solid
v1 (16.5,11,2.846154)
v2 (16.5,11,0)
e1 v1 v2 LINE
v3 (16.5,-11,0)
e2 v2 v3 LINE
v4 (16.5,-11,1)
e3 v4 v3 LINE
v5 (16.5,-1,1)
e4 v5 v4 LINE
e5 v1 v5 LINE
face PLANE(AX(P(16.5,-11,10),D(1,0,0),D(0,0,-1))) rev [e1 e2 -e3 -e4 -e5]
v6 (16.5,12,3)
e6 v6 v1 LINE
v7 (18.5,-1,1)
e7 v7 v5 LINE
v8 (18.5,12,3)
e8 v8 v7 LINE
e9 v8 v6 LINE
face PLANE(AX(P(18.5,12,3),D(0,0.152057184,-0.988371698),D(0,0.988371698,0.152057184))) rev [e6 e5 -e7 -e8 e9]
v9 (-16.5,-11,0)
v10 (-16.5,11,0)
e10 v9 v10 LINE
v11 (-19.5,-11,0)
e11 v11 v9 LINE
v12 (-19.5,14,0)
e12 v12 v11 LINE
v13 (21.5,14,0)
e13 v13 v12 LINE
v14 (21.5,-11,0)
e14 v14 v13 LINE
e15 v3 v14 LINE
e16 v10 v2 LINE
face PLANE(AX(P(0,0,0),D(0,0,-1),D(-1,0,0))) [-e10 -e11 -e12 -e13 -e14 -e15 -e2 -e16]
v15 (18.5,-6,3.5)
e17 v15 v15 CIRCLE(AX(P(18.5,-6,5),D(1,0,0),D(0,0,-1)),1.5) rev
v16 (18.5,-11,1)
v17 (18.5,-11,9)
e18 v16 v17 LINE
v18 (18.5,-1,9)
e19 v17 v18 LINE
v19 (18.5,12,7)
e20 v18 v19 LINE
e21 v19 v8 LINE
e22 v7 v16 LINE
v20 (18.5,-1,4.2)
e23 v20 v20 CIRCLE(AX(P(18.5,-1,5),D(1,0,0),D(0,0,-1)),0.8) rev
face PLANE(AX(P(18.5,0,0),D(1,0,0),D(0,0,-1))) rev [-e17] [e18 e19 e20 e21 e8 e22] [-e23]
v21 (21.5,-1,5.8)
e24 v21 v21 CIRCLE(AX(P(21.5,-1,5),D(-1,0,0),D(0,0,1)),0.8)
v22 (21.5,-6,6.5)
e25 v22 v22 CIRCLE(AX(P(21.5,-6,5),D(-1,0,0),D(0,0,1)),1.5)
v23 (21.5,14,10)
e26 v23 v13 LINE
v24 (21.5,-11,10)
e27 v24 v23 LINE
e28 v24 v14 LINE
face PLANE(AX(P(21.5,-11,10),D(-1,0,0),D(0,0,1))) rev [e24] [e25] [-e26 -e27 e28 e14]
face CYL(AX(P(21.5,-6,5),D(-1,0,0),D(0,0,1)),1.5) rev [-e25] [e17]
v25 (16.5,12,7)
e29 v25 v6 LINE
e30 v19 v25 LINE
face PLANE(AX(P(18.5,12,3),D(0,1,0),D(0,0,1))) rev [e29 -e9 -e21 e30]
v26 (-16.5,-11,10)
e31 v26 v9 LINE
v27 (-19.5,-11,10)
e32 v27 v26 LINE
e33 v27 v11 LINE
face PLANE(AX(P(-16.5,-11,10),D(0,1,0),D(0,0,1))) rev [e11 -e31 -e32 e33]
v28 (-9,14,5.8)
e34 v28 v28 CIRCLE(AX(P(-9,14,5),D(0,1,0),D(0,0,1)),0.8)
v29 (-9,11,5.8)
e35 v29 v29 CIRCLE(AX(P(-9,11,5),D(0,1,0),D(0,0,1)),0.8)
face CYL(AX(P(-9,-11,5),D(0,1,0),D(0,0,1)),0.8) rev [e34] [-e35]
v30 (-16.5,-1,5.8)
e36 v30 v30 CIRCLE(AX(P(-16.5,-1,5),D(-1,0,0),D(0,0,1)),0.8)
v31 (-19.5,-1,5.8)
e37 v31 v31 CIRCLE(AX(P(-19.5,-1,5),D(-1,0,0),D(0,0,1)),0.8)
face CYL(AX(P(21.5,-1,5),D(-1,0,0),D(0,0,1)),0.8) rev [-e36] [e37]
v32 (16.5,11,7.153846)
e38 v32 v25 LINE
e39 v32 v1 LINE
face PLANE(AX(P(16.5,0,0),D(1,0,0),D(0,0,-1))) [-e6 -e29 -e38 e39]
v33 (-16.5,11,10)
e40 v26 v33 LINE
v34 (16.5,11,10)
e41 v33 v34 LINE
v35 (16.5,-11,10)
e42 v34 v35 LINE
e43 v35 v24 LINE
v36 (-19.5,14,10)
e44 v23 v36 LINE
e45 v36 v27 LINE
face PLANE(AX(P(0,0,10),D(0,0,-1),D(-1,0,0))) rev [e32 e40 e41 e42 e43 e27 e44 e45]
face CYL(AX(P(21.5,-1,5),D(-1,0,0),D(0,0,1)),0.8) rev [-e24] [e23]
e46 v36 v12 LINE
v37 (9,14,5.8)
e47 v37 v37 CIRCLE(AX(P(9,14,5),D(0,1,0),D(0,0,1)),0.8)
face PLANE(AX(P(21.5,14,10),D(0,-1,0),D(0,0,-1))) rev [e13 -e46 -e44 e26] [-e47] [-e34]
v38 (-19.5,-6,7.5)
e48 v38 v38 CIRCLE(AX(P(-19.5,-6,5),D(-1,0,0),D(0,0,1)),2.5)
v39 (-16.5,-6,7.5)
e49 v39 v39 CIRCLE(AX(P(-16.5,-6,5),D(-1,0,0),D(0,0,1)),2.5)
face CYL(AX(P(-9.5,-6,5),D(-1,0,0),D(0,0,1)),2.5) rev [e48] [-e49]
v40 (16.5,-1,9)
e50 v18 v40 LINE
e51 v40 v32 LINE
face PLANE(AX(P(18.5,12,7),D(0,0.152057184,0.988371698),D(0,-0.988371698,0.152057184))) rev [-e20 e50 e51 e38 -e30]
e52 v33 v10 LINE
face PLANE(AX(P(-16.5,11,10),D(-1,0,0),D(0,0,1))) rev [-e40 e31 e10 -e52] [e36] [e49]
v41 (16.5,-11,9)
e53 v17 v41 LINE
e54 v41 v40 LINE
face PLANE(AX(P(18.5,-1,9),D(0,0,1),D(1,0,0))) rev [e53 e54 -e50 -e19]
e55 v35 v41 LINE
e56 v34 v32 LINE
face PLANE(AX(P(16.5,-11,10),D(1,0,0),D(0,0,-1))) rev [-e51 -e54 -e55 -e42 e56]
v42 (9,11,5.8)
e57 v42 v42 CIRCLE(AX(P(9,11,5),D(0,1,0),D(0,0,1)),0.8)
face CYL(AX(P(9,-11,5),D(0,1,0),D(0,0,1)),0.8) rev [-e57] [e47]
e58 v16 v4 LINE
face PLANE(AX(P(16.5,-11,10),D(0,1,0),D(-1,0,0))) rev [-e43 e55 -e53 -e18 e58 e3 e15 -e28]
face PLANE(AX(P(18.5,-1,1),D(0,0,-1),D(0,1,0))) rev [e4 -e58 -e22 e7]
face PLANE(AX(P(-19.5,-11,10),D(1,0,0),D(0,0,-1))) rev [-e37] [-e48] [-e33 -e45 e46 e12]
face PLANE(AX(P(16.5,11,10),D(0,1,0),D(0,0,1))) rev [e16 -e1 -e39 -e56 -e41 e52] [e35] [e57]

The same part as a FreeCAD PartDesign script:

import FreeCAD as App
import Part
import Sketcher


def add_polygon(sketch, points):
    """Adds a closed chain of lines whose ends are joined by coincident constraints."""
    first, n = sketch.GeometryCount, len(points)
    for a, b in zip(points, points[1:] + points[:1]):
        sketch.addGeometry(Part.LineSegment(App.Vector(*a, 0), App.Vector(*b, 0)), False)
    for i in range(n):
        sketch.addConstraint(Sketcher.Constraint("Coincident", first + i, 2, first + (i + 1) % n, 1))

doc = App.newDocument("Part")
body = doc.addObject("PartDesign::Body", "Body")

sketch1 = body.newObject("Sketcher::SketchObject", "Sketch")
sketch1.AttachmentSupport = (doc.getObject("XY_Plane"), [""])
sketch1.MapMode = "FlatFace"
add_polygon(sketch1, [(-19.5, -11), (-16.5, -11), (-16.5, 11), (16.5, 11), (16.5, -11), (21.5, -11), (21.5, 14), (-19.5, 14)])
sketch1.addConstraint([
    Sketcher.Constraint("Horizontal", 0),
    Sketcher.Constraint("Vertical", 1),
    Sketcher.Constraint("Horizontal", 2),
    Sketcher.Constraint("Vertical", 3),
    Sketcher.Constraint("Horizontal", 4),
    Sketcher.Constraint("Vertical", 5),
    Sketcher.Constraint("Horizontal", 6),
    Sketcher.Constraint("Vertical", 7),
    Sketcher.Constraint("Symmetric", 0, 2, 2, 2, -1, 1),
    Sketcher.Constraint("Horizontal", 0, 2, 3, 2),
    Sketcher.Constraint("DistanceX", 0, 1, 0, 2, 3.0),
    Sketcher.Constraint("DistanceX", 2, 1, 2, 2, 33.0),
    Sketcher.Constraint("DistanceX", 4, 1, 4, 2, 5.0),
    Sketcher.Constraint("DistanceY", 1, 1, 1, 2, 22.0),
    Sketcher.Constraint("DistanceY", 5, 1, 5, 2, 25.0),
])
pad1 = body.newObject("PartDesign::Pad", "Pad")
pad1.Profile = sketch1
pad1.Length = 10

sketch2 = body.newObject("Sketcher::SketchObject", "Sketch001")
sketch2.AttachmentSupport = (doc.getObject("YZ_Plane"), [""])
sketch2.MapMode = "FlatFace"
sketch2.AttachmentOffset = App.Placement(App.Vector(0, 0, -19.5), App.Rotation())
sketch2.addGeometry([
    Part.Circle(App.Vector(-6, 5, 0), App.Vector(0, 0, 1), 1.5),
    Part.Circle(App.Vector(-1, 5, 0), App.Vector(0, 0, 1), 0.8),
], False)
sketch2.addConstraint([
    Sketcher.Constraint("Horizontal", 0, 3, 1, 3),
    Sketcher.Constraint("Diameter", 0, 3.0),
    Sketcher.Constraint("Diameter", 1, 1.6),
    Sketcher.Constraint("DistanceX", 0, 3, -1, 1, 6.0),
    Sketcher.Constraint("DistanceY", -1, 1, 0, 3, 5.0),
    Sketcher.Constraint("DistanceX", 1, 3, -1, 1, 1.0),
])
pocket1 = body.newObject("PartDesign::Pocket", "Pocket")
pocket1.Profile = sketch2
pocket1.Type = "ThroughAll"
pocket1.Reversed = True

sketch3 = body.newObject("Sketcher::SketchObject", "Sketch002")
sketch3.AttachmentSupport = (doc.getObject("XZ_Plane"), [""])
sketch3.MapMode = "FlatFace"
sketch3.AttachmentOffset = App.Placement(App.Vector(0, 0, -14), App.Rotation())
sketch3.addGeometry([
    Part.Circle(App.Vector(-9, 5, 0), App.Vector(0, 0, 1), 0.8),
    Part.Circle(App.Vector(9, 5, 0), App.Vector(0, 0, 1), 0.8),
], False)
sketch3.addConstraint([
    Sketcher.Constraint("Equal", 0, 1),
    Sketcher.Constraint("Symmetric", 0, 3, 1, 3, -2),
    Sketcher.Constraint("Diameter", 0, 1.6),
    Sketcher.Constraint("DistanceX", 0, 3, -1, 1, 9.0),
    Sketcher.Constraint("DistanceY", -1, 1, 0, 3, 5.0),
])
pocket2 = body.newObject("PartDesign::Pocket", "Pocket001")
pocket2.Profile = sketch3
pocket2.Type = "ThroughAll"
pocket2.Reversed = True

sketch4 = body.newObject("Sketcher::SketchObject", "Sketch003")
sketch4.AttachmentSupport = (doc.getObject("YZ_Plane"), [""])
sketch4.MapMode = "FlatFace"
sketch4.AttachmentOffset = App.Placement(App.Vector(0, 0, 16.5), App.Rotation())
add_polygon(sketch4, [(-1, 1), (-11, 1), (-11, 9), (-1, 9), (12, 7), (12, 3)])
sketch4.addConstraint([
    Sketcher.Constraint("Horizontal", 0),
    Sketcher.Constraint("Vertical", 1),
    Sketcher.Constraint("Horizontal", 2),
    Sketcher.Constraint("Vertical", 4),
    Sketcher.Constraint("Vertical", 2, 2, 5, 2),
    Sketcher.Constraint("Equal", 3, 5),
    Sketcher.Constraint("DistanceX", 0, 2, 0, 1, 10.0),
    Sketcher.Constraint("DistanceY", 1, 1, 1, 2, 8.0),
    Sketcher.Constraint("DistanceY", 4, 2, 4, 1, 4.0),
    Sketcher.Constraint("DistanceX", 0, 2, -1, 1, 11.0),
    Sketcher.Constraint("DistanceY", -1, 1, 0, 2, 1.0),
    Sketcher.Constraint("DistanceX", -1, 1, 3, 2, 12.0),
])
pocket3 = body.newObject("PartDesign::Pocket", "Pocket002")
pocket3.Profile = sketch4
pocket3.Length = 2
pocket3.Reversed = True

sketch5 = body.newObject("Sketcher::SketchObject", "Sketch004")
sketch5.AttachmentSupport = (doc.getObject("YZ_Plane"), [""])
sketch5.MapMode = "FlatFace"
sketch5.AttachmentOffset = App.Placement(App.Vector(0, 0, -19.5), App.Rotation())
sketch5.addGeometry(Part.Circle(App.Vector(-6, 5, 0), App.Vector(0, 0, 1), 2.5), False)
sketch5.addConstraint([
    Sketcher.Constraint("Diameter", 0, 5.0),
    Sketcher.Constraint("DistanceX", 0, 3, -1, 1, 6.0),
    Sketcher.Constraint("DistanceY", -1, 1, 0, 3, 5.0),
])
pocket4 = body.newObject("PartDesign::Pocket", "Pocket003")
pocket4.Profile = sketch5
pocket4.Length = 10
pocket4.Reversed = True

doc.recompute()
